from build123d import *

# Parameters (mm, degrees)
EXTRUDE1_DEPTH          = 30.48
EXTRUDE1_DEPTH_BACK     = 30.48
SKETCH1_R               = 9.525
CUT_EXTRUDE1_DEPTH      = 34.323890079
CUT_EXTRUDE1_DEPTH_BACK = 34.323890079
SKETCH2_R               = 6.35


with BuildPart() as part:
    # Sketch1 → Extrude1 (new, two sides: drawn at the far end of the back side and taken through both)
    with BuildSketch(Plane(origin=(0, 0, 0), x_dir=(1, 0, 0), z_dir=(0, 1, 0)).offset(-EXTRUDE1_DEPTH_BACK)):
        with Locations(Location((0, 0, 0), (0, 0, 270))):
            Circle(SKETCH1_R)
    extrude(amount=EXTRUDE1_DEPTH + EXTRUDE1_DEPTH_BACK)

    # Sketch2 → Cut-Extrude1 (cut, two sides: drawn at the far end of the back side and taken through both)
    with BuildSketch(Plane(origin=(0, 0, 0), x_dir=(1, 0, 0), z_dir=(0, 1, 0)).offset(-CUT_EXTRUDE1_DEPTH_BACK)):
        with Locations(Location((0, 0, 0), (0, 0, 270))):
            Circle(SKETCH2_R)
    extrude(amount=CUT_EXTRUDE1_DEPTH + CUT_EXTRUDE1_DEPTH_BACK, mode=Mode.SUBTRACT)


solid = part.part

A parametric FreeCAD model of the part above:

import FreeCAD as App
import Part
import Sketcher
from FreeCAD import Vector
Q = App.Units.Quantity

doc = App.newDocument("Part")
body = doc.addObject("PartDesign::Body", "Body")

# Sketch on XZ plane
sketch1 = body.newObject("Sketcher::SketchObject", "Sketch")
sketch1.AttachmentSupport = (doc.getObject("XZ_Plane"), [""])
sketch1.MapMode = "FlatFace"
sketch1.addGeometry(Part.Circle(Vector(0, 0, 0), Vector(0, 0, 1), 9.525), False)
sketch1.addConstraint(Sketcher.Constraint("Coincident", 0, 3, -1, 1))
sketch1.addConstraint(Sketcher.Constraint("Diameter", 0, Q("0.75 in")))
pad1 = body.newObject("PartDesign::Pad", "Pad")
pad1.Profile = sketch1
pad1.Type = "TwoLengths"
pad1.Length = Q("1.2 in")
pad1.Length2 = Q("1.2 in")
pad1.Reversed = True

# Sketch on XZ plane
sketch2 = body.newObject("Sketcher::SketchObject", "Sketch001")
sketch2.AttachmentSupport = (doc.getObject("XZ_Plane"), [""])
sketch2.MapMode = "FlatFace"
sketch2.addGeometry(Part.Circle(Vector(0, 0, 0), Vector(0, 0, 1), 6.35), False)
sketch2.addConstraint(Sketcher.Constraint("Coincident", 0, 3, -1, 1))
sketch2.addConstraint(Sketcher.Constraint("Diameter", 0, Q("0.5 in")))
pocket1 = body.newObject("PartDesign::Pocket", "Pocket")
pocket1.Profile = sketch2
pocket1.Type = "ThroughAll"
pocket1.Midplane = True

doc.recompute()
